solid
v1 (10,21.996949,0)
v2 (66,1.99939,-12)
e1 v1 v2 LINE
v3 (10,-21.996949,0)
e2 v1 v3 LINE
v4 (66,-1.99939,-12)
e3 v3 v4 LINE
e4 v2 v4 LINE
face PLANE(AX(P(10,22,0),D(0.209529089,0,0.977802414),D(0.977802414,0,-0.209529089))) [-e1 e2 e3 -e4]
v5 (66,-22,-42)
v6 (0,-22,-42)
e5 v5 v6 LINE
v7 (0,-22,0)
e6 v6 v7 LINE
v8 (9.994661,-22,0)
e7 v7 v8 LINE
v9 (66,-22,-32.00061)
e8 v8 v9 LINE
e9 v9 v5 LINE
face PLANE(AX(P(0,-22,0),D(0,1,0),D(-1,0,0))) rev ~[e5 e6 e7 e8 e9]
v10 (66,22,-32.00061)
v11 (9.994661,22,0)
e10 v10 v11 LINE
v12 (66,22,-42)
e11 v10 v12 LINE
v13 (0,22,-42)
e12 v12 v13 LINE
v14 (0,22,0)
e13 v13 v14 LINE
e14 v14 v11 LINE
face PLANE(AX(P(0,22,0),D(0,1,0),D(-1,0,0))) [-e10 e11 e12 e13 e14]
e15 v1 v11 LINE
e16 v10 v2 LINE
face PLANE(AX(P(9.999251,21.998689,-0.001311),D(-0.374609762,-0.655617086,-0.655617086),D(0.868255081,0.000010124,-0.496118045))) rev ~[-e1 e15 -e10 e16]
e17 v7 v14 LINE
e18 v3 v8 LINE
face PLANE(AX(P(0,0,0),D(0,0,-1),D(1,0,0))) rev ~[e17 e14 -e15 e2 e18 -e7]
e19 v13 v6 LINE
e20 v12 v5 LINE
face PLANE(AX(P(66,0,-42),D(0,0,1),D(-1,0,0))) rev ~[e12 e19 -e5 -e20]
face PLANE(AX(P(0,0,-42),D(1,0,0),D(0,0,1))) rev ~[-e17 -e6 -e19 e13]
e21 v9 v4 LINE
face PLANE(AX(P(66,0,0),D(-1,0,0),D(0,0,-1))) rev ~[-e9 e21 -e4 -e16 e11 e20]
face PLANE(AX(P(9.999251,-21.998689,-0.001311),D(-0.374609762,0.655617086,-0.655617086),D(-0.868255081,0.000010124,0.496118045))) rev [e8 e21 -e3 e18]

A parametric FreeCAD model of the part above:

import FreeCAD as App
import Part
import Sketcher


def add_polygon(sketch, points):
    """Adds a closed chain of lines whose ends are joined by coincident constraints."""
    first, n = sketch.GeometryCount, len(points)
    for a, b in zip(points, points[1:] + points[:1]):
        sketch.addGeometry(Part.LineSegment(App.Vector(*a, 0), App.Vector(*b, 0)), False)
    for i in range(n):
        sketch.addConstraint(Sketcher.Constraint("Coincident", first + i, 2, first + (i + 1) % n, 1))

doc = App.newDocument("Part")
body = doc.addObject("PartDesign::Body", "Body")

# Sketch on XZ plane
sketch1 = body.newObject("Sketcher::SketchObject", "Sketch")
sketch1.AttachmentSupport = (doc.getObject("XZ_Plane"), [""])
sketch1.MapMode = "FlatFace"
add_polygon(sketch1, [(0, -42), (0, 0), (66, 0), (66, -42)])  # lines 0-3
sketch1.addConstraint(Sketcher.Constraint("Vertical", 0))
sketch1.addConstraint(Sketcher.Constraint("Horizontal", 1))
sketch1.addConstraint(Sketcher.Constraint("Vertical", 2))
sketch1.addConstraint(Sketcher.Constraint("Horizontal", 3))
sketch1.addConstraint(Sketcher.Constraint("Coincident", 0, 2, -1, 1))
sketch1.addConstraint(Sketcher.Constraint("DistanceX", 1, 1, 1, 2, 66.0))
sketch1.addConstraint(Sketcher.Constraint("DistanceY", 0, 1, 0, 2, 42.0))
pad1 = body.newObject("PartDesign::Pad", "Pad")
pad1.Profile = sketch1
pad1.Length = 44
pad1.Midplane = True

# Sketch on XZ plane
sketch2 = body.newObject("Sketcher::SketchObject", "Sketch001")
sketch2.AttachmentSupport = (doc.getObject("XZ_Plane"), [""])
sketch2.MapMode = "FlatFace"
sketch2.AttachmentOffset = App.Placement(App.Vector(0, 0, -22), App.Rotation())
add_polygon(sketch2, [(66, -12), (10, 0), (66, 0)])  # lines 0-2
sketch2.addConstraint(Sketcher.Constraint("Horizontal", 1))
sketch2.addConstraint(Sketcher.Constraint("Vertical", 2))
sketch2.addConstraint(Sketcher.Constraint("PointOnObject", 0, 2, -1))
sketch2.addConstraint(Sketcher.Constraint("DistanceX", -1, 1, 0, 2, 10.0))
sketch2.addConstraint(Sketcher.Constraint("DistanceX", 1, 1, 1, 2, 56.0))
sketch2.addConstraint(Sketcher.Constraint("DistanceY", 2, 2, 2, 1, 12.0))
pocket1 = body.newObject("PartDesign::Pocket", "Pocket")
pocket1.Profile = sketch2
pocket1.Length = 60
pocket1.Reversed = True

# Sketch on an angled plane
sketch3 = body.newObject("Sketcher::SketchObject", "Sketch002")
sketch3.Placement = App.Placement(App.Vector(10, 22, 0), App.Rotation(App.Vector(0.868255081, 0.000010124, -0.496118045), App.Vector(0.325270104, -0.755093529, 0.569239074), App.Vector(-0.374609762, -0.655617086, -0.655617086), "ZXY"))
add_polygon(sketch3, [(-15.1543, 28.8166), (-15.1543, -12.3218), (93.717, -12.3218), (93.717, 28.8166)])  # lines 0-3
sketch3.addConstraint(Sketcher.Constraint("Vertical", 0))
sketch3.addConstraint(Sketcher.Constraint("Horizontal", 1))
sketch3.addConstraint(Sketcher.Constraint("Vertical", 2))
sketch3.addConstraint(Sketcher.Constraint("Horizontal", 3))
sketch3.addConstraint(Sketcher.Constraint("DistanceX", 1, 1, 1, 2, 108.8713))
sketch3.addConstraint(Sketcher.Constraint("DistanceY", 0, 2, 0, 1, 41.1384))
sketch3.addConstraint(Sketcher.Constraint("DistanceX", -1, 1, 1, 2, 93.717))
sketch3.addConstraint(Sketcher.Constraint("DistanceY", 0, 2, -1, 1, 12.3218))
pocket2 = body.newObject("PartDesign::Pocket", "Pocket001")
pocket2.Profile = sketch3
pocket2.Length = 40
doc.recompute()

mirrored = body.newObject("PartDesign::Mirrored", "Mirrored")
mirrored.Originals = [pocket2]
mirrored.MirrorPlane = (doc.getObject("XZ_Plane"), [""])
body.Tip = mirrored

doc.recompute()
